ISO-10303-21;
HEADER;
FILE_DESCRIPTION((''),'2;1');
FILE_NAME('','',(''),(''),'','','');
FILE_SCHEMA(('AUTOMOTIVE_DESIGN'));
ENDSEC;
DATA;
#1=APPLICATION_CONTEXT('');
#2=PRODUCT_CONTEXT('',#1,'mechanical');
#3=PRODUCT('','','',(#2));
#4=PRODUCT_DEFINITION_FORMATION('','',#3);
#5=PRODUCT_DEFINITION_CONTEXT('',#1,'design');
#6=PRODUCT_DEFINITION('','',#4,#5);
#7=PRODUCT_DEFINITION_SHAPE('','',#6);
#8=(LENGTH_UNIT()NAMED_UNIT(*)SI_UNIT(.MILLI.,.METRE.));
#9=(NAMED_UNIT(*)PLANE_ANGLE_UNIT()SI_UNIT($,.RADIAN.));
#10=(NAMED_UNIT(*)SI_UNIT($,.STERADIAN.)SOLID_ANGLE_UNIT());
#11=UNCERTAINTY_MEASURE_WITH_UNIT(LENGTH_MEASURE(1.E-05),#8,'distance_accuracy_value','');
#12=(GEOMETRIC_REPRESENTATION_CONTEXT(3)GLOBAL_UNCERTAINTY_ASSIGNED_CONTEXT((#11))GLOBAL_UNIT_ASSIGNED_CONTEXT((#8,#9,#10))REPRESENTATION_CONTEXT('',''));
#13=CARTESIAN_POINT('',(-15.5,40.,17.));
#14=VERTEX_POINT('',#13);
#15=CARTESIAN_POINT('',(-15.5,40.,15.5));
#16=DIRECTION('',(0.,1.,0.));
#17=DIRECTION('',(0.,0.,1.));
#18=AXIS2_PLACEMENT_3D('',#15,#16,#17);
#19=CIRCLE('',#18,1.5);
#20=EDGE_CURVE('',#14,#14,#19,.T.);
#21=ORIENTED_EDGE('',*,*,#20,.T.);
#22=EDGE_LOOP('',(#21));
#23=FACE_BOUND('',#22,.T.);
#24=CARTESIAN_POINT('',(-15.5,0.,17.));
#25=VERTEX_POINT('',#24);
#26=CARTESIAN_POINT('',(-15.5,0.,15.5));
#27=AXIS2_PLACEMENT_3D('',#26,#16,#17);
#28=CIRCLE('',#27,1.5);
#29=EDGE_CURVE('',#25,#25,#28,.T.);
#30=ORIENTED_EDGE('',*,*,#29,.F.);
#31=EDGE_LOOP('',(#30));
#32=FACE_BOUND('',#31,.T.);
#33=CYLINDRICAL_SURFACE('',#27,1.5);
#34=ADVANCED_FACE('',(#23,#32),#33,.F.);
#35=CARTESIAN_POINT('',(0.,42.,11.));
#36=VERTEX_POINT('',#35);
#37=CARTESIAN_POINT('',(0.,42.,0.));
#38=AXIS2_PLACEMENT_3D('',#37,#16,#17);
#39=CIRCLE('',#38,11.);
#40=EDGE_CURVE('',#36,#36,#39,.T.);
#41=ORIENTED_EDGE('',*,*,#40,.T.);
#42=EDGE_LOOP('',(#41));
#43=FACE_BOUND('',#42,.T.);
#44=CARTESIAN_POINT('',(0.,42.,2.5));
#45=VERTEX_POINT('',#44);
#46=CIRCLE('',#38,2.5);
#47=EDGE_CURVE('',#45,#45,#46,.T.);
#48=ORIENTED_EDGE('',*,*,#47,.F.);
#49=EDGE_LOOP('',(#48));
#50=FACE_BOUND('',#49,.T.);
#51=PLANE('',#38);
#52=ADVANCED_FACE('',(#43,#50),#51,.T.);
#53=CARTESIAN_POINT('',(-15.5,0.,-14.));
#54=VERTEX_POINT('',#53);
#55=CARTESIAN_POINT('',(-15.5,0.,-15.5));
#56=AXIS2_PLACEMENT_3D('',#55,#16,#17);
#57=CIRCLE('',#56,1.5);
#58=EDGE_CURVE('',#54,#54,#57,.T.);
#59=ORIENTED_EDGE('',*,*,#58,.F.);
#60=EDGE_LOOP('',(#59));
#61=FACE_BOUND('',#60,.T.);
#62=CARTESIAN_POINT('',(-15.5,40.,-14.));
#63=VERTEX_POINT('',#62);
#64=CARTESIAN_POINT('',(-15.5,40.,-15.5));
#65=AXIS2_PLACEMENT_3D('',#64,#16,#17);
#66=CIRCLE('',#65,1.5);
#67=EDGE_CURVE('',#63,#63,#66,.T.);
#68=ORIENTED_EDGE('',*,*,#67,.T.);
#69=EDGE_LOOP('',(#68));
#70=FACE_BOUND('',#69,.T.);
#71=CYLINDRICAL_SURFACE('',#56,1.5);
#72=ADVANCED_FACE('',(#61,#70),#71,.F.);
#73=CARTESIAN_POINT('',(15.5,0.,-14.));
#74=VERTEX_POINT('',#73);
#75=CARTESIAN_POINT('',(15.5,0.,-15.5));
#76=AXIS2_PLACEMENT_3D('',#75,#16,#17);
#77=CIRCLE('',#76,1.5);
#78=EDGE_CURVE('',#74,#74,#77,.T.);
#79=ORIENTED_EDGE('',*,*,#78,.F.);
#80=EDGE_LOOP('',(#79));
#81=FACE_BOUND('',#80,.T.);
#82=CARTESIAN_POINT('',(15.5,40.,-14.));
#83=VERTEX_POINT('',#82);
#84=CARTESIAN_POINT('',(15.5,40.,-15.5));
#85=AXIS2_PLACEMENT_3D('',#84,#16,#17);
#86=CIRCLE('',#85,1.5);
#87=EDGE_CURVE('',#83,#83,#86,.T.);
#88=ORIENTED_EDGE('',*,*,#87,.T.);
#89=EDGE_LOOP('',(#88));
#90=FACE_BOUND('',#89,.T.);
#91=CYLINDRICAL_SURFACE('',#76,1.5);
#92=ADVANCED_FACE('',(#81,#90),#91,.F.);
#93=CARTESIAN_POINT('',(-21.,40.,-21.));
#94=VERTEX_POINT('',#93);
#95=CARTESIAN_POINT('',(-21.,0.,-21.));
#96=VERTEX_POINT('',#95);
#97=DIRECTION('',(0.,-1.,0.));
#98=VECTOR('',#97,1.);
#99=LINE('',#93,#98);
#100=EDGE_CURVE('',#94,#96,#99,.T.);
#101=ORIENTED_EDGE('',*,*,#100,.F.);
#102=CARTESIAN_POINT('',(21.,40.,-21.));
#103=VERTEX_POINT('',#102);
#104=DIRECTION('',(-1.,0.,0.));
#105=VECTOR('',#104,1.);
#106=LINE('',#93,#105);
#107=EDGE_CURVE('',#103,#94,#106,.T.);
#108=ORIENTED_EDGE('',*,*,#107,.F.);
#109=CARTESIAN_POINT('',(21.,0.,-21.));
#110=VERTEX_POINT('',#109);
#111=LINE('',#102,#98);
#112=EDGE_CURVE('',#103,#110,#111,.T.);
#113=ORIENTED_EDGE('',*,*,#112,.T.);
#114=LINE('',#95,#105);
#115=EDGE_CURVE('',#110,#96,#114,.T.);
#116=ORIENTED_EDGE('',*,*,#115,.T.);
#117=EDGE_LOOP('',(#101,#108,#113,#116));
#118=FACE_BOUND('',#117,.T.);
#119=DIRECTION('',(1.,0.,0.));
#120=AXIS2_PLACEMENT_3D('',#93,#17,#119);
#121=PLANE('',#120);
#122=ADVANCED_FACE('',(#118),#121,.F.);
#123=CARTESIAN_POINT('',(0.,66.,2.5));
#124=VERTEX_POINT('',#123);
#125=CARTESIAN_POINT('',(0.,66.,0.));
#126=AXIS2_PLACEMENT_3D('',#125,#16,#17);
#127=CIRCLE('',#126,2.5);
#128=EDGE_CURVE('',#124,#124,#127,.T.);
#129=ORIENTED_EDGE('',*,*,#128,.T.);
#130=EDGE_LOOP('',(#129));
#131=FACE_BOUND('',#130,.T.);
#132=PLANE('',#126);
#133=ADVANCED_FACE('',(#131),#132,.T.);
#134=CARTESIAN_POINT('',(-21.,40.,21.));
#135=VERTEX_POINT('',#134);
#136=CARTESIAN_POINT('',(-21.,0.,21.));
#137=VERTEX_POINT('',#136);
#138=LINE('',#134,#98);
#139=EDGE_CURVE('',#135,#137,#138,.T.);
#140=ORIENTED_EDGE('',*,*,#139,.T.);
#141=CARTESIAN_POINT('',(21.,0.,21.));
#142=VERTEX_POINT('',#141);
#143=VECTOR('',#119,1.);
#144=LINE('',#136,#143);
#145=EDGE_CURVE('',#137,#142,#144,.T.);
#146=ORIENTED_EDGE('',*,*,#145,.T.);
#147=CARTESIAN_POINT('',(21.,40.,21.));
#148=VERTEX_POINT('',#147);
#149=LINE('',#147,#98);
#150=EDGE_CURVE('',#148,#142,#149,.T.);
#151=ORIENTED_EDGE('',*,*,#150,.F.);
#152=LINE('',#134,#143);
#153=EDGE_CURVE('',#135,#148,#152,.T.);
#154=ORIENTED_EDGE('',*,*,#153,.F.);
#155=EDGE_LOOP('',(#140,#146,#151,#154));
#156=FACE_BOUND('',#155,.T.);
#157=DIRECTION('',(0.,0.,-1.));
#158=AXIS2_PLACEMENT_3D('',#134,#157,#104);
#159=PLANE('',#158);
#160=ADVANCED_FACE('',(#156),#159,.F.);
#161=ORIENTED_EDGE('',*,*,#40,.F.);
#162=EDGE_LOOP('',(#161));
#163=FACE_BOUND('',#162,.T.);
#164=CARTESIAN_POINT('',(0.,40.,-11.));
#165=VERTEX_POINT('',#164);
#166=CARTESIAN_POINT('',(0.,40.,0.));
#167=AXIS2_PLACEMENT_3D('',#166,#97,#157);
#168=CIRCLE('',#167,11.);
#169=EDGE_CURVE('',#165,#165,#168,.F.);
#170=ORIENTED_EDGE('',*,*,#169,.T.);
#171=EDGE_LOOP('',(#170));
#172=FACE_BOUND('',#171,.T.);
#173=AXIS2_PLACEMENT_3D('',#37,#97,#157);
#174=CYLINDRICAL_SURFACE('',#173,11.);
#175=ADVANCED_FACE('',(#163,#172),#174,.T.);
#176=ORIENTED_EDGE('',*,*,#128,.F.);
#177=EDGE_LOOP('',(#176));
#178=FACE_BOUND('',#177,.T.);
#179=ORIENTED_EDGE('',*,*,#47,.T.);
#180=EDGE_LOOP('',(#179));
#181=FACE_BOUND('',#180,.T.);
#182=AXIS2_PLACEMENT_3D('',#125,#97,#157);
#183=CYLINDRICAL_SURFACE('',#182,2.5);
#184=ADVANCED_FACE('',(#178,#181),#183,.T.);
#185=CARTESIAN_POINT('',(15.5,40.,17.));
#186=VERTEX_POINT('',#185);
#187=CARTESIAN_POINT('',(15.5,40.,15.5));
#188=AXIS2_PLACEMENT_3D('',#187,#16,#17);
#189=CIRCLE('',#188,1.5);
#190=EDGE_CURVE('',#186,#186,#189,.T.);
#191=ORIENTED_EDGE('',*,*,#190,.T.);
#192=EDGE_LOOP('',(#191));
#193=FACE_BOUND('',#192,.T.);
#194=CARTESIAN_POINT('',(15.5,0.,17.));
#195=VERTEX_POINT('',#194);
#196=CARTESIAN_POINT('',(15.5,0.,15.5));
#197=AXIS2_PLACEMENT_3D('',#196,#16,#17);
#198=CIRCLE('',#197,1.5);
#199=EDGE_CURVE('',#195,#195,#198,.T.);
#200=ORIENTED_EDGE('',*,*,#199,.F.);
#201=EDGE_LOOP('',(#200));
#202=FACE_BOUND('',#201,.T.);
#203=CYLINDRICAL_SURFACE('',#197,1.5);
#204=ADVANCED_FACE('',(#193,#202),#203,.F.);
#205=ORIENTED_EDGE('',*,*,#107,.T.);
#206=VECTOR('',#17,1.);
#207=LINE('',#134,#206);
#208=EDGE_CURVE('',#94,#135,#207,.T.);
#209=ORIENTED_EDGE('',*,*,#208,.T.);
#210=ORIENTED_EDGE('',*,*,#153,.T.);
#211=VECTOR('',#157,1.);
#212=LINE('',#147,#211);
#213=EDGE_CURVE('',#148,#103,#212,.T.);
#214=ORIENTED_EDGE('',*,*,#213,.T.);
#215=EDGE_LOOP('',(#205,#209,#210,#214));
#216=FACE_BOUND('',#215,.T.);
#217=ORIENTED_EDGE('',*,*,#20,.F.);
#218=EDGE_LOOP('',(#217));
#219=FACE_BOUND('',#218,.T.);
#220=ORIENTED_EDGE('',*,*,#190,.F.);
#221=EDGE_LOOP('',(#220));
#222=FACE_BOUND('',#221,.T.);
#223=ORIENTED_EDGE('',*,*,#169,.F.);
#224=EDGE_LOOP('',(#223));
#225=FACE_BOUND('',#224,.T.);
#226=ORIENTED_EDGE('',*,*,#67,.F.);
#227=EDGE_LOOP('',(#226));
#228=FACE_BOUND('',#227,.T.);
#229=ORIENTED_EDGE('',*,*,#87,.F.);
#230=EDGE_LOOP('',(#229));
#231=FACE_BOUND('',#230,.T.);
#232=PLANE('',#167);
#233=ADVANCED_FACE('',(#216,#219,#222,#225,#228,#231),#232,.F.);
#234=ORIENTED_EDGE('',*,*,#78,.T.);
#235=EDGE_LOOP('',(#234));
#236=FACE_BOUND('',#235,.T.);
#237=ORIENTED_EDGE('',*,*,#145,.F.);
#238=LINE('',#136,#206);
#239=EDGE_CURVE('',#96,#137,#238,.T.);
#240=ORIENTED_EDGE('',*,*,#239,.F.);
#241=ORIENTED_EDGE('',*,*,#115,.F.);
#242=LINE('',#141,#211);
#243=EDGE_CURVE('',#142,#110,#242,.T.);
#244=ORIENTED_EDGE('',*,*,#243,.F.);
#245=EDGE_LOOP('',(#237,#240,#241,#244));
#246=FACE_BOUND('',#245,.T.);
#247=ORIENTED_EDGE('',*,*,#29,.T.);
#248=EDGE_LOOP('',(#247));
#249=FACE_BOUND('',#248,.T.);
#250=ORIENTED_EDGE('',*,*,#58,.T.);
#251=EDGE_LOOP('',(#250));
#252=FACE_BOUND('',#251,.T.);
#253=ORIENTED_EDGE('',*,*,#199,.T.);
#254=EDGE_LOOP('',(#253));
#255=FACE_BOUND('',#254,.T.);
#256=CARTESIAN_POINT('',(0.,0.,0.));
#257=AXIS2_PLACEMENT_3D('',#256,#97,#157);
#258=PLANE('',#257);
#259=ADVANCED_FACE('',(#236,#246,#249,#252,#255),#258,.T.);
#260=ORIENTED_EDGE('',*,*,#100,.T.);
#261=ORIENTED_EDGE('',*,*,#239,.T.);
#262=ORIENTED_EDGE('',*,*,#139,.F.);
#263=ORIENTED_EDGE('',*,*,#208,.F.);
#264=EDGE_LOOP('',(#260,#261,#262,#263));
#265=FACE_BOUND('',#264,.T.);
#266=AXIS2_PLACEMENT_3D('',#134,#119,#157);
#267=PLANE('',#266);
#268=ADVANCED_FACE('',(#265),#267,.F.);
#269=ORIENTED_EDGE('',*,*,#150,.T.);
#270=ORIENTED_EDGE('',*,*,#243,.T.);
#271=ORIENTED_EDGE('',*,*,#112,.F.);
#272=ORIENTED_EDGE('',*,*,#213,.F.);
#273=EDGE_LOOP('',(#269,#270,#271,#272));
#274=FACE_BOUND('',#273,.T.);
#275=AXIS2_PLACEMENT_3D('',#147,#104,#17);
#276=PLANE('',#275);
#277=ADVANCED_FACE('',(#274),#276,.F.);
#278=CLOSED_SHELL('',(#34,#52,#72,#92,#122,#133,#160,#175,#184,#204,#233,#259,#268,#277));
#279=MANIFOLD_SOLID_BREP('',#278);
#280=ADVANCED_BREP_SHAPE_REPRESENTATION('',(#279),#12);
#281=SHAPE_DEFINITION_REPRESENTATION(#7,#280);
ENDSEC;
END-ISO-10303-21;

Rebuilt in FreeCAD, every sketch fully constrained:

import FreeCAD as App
import Part
import Sketcher

V = App.Vector

doc = App.newDocument("Part")
body = doc.addObject("PartDesign::Body", "Body")

sketch1 = doc.addObject("Sketcher::SketchObject", "Sketch")
body.addObject(sketch1)
sketch1.AttachmentSupport = (doc.XZ_Plane, [""])
sketch1.MapMode = "FlatFace"
sketch1.addGeometry([
    Part.LineSegment(V(-21, -21, 0), V(-21, 21, 0)),
    Part.LineSegment(V(-21, 21, 0), V(21, 21, 0)),
    Part.LineSegment(V(21, 21, 0), V(21, -21, 0)),
    Part.LineSegment(V(21, -21, 0), V(-21, -21, 0)),
], False)
sketch1.addConstraint([
    Sketcher.Constraint("Coincident", 0, 2, 1, 1),
    Sketcher.Constraint("Coincident", 1, 2, 2, 1),
    Sketcher.Constraint("Coincident", 2, 2, 3, 1),
    Sketcher.Constraint("Coincident", 3, 2, 0, 1),
    Sketcher.Constraint("Vertical", 0),
    Sketcher.Constraint("Horizontal", 1),
    Sketcher.Constraint("Vertical", 2),
    Sketcher.Constraint("Horizontal", 3),
    Sketcher.Constraint("Symmetric", 0, 2, 2, 2, -1, 1),
    Sketcher.Constraint("Equal", 3, 0),
    Sketcher.Constraint("DistanceX", 1, 1, 1, 2, 42.0),
])
pad1 = doc.addObject("PartDesign::Pad", "Pad")
body.addObject(pad1)
pad1.Profile = sketch1
pad1.Length = 40
pad1.Reversed = True

sketch2 = doc.addObject("Sketcher::SketchObject", "Sketch001")
body.addObject(sketch2)
sketch2.AttachmentSupport = (doc.XZ_Plane, [""])
sketch2.MapMode = "FlatFace"
sketch2.AttachmentOffset = App.Placement(V(0, 0, -40), App.Rotation())
sketch2.addGeometry([
    Part.Circle(V(-15.5, -15.5, 0), V(0, 0, 1), 1.5),
    Part.Circle(V(15.5, -15.5, 0), V(0, 0, 1), 1.5),
    Part.Circle(V(15.5, 15.5, 0), V(0, 0, 1), 1.5),
    Part.Circle(V(-15.5, 15.5, 0), V(0, 0, 1), 1.5),
], False)
sketch2.addConstraint([
    Sketcher.Constraint("Equal", 0, 1),
    Sketcher.Constraint("Equal", 1, 2),
    Sketcher.Constraint("Equal", 2, 3),
    Sketcher.Constraint("Symmetric", 0, 3, 2, 3, -1, 1),
    Sketcher.Constraint("Symmetric", 1, 3, 3, 3, -1, 1),
    Sketcher.Constraint("Symmetric", 0, 3, 1, 3, -2),
    Sketcher.Constraint("Diameter", 0, 3.0),
    Sketcher.Constraint("DistanceX", 0, 3, 1, 3, 31.0),
    Sketcher.Constraint("DistanceY", 1, 3, 2, 3, 31.0),
])
pocket1 = doc.addObject("PartDesign::Pocket", "Pocket")
body.addObject(pocket1)
pocket1.Profile = sketch2
pocket1.Type = "ThroughAll"
pocket1.Reversed = True

sketch3 = doc.addObject("Sketcher::SketchObject", "Sketch002")
body.addObject(sketch3)
sketch3.AttachmentSupport = (doc.XZ_Plane, [""])
sketch3.MapMode = "FlatFace"
sketch3.AttachmentOffset = App.Placement(V(0, 0, -40), App.Rotation())
sketch3.addGeometry(Part.Circle(V(0, 0, 0), V(0, 0, 1), 11), False)
sketch3.addConstraint([
    Sketcher.Constraint("Coincident", 0, 3, -1, 1),
    Sketcher.Constraint("Diameter", 0, 22.0),
])
pad2 = doc.addObject("PartDesign::Pad", "Pad001")
body.addObject(pad2)
pad2.Profile = sketch3
pad2.Length = 2
pad2.Reversed = True

sketch4 = doc.addObject("Sketcher::SketchObject", "Sketch003")
body.addObject(sketch4)
sketch4.AttachmentSupport = (doc.XZ_Plane, [""])
sketch4.MapMode = "FlatFace"
sketch4.AttachmentOffset = App.Placement(V(0, 0, -42), App.Rotation())
sketch4.addGeometry(Part.Circle(V(0, 0, 0), V(0, 0, 1), 2.5), False)
sketch4.addConstraint([
    Sketcher.Constraint("Coincident", 0, 3, -1, 1),
    Sketcher.Constraint("Diameter", 0, 5.0),
])
pad3 = doc.addObject("PartDesign::Pad", "Pad002")
body.addObject(pad3)
pad3.Profile = sketch4
pad3.Length = 24
pad3.Reversed = True

doc.recompute()
